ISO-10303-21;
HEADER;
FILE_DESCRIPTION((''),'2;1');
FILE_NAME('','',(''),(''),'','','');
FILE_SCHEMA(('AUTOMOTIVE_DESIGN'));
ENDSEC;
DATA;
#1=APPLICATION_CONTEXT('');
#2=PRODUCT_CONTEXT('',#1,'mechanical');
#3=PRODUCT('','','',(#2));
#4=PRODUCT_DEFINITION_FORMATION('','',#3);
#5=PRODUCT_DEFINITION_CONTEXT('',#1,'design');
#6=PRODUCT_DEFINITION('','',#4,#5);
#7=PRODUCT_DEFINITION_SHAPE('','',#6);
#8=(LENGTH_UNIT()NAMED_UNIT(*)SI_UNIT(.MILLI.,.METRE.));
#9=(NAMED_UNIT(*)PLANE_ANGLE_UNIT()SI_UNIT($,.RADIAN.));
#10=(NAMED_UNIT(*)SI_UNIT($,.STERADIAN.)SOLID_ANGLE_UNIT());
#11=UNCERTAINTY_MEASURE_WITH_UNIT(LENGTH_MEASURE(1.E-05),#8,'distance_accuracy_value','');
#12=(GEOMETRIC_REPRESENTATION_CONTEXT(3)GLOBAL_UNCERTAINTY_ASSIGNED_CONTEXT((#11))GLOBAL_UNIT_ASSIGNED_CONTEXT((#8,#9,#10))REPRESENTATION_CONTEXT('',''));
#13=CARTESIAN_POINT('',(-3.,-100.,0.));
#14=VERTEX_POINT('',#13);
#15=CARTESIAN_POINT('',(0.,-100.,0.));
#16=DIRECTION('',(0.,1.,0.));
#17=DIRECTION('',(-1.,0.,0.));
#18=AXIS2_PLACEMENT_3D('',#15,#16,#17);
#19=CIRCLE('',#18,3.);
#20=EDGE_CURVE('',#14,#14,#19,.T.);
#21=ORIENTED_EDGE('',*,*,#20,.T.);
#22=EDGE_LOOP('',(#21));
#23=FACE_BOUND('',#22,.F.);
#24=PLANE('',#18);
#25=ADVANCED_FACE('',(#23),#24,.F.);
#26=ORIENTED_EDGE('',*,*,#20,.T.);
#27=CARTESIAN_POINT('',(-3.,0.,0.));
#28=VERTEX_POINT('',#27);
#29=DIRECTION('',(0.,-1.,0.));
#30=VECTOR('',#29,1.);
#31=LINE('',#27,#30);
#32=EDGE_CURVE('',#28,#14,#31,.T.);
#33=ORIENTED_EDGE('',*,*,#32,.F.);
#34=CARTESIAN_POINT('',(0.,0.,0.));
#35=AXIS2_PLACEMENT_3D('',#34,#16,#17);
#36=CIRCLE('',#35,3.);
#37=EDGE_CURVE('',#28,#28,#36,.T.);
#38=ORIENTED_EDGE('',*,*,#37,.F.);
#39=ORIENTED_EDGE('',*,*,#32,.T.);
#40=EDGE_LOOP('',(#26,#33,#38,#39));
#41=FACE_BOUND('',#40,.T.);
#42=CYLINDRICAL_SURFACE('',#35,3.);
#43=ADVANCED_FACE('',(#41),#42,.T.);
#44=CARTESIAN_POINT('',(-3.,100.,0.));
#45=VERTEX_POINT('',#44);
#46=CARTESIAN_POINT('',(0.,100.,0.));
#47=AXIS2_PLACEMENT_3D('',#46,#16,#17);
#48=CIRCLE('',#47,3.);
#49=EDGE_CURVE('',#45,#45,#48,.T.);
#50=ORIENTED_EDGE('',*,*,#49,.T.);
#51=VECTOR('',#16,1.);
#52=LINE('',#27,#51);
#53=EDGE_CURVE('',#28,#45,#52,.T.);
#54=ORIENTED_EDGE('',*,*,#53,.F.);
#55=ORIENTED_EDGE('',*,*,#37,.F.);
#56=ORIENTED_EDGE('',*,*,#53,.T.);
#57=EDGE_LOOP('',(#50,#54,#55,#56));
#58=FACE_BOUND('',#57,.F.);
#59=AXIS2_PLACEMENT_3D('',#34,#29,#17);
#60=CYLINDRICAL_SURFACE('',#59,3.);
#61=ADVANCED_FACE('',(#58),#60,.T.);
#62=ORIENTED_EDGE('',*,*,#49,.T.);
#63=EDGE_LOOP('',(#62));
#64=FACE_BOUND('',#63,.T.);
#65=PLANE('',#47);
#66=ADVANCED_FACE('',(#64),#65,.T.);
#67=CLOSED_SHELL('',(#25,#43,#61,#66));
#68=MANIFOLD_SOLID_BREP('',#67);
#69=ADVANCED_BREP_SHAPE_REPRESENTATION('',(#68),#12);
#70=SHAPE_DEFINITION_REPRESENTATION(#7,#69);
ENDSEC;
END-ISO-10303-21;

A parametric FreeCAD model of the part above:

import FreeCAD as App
import Part
import Sketcher
from FreeCAD import Vector

doc = App.newDocument("Part")
body = doc.addObject("PartDesign::Body", "Body")

# Sketch on XZ plane
sketch1 = doc.addObject("Sketcher::SketchObject", "Sketch")
body.addObject(sketch1)
sketch1.AttachmentSupport = (doc.XZ_Plane, [""])
sketch1.MapMode = "FlatFace"
sketch1.addGeometry(Part.Circle(Vector(0, 0, 0), Vector(0, 0, 1), 3), False)
sketch1.addConstraint([
    Sketcher.Constraint("Coincident", 0, 3, -1, 1),
    Sketcher.Constraint("Diameter", 0, 6.0),
])
pad1 = doc.addObject("PartDesign::Pad", "Pad")
body.addObject(pad1)
pad1.Profile = sketch1
pad1.Length = 200
pad1.Midplane = True

doc.recompute()
